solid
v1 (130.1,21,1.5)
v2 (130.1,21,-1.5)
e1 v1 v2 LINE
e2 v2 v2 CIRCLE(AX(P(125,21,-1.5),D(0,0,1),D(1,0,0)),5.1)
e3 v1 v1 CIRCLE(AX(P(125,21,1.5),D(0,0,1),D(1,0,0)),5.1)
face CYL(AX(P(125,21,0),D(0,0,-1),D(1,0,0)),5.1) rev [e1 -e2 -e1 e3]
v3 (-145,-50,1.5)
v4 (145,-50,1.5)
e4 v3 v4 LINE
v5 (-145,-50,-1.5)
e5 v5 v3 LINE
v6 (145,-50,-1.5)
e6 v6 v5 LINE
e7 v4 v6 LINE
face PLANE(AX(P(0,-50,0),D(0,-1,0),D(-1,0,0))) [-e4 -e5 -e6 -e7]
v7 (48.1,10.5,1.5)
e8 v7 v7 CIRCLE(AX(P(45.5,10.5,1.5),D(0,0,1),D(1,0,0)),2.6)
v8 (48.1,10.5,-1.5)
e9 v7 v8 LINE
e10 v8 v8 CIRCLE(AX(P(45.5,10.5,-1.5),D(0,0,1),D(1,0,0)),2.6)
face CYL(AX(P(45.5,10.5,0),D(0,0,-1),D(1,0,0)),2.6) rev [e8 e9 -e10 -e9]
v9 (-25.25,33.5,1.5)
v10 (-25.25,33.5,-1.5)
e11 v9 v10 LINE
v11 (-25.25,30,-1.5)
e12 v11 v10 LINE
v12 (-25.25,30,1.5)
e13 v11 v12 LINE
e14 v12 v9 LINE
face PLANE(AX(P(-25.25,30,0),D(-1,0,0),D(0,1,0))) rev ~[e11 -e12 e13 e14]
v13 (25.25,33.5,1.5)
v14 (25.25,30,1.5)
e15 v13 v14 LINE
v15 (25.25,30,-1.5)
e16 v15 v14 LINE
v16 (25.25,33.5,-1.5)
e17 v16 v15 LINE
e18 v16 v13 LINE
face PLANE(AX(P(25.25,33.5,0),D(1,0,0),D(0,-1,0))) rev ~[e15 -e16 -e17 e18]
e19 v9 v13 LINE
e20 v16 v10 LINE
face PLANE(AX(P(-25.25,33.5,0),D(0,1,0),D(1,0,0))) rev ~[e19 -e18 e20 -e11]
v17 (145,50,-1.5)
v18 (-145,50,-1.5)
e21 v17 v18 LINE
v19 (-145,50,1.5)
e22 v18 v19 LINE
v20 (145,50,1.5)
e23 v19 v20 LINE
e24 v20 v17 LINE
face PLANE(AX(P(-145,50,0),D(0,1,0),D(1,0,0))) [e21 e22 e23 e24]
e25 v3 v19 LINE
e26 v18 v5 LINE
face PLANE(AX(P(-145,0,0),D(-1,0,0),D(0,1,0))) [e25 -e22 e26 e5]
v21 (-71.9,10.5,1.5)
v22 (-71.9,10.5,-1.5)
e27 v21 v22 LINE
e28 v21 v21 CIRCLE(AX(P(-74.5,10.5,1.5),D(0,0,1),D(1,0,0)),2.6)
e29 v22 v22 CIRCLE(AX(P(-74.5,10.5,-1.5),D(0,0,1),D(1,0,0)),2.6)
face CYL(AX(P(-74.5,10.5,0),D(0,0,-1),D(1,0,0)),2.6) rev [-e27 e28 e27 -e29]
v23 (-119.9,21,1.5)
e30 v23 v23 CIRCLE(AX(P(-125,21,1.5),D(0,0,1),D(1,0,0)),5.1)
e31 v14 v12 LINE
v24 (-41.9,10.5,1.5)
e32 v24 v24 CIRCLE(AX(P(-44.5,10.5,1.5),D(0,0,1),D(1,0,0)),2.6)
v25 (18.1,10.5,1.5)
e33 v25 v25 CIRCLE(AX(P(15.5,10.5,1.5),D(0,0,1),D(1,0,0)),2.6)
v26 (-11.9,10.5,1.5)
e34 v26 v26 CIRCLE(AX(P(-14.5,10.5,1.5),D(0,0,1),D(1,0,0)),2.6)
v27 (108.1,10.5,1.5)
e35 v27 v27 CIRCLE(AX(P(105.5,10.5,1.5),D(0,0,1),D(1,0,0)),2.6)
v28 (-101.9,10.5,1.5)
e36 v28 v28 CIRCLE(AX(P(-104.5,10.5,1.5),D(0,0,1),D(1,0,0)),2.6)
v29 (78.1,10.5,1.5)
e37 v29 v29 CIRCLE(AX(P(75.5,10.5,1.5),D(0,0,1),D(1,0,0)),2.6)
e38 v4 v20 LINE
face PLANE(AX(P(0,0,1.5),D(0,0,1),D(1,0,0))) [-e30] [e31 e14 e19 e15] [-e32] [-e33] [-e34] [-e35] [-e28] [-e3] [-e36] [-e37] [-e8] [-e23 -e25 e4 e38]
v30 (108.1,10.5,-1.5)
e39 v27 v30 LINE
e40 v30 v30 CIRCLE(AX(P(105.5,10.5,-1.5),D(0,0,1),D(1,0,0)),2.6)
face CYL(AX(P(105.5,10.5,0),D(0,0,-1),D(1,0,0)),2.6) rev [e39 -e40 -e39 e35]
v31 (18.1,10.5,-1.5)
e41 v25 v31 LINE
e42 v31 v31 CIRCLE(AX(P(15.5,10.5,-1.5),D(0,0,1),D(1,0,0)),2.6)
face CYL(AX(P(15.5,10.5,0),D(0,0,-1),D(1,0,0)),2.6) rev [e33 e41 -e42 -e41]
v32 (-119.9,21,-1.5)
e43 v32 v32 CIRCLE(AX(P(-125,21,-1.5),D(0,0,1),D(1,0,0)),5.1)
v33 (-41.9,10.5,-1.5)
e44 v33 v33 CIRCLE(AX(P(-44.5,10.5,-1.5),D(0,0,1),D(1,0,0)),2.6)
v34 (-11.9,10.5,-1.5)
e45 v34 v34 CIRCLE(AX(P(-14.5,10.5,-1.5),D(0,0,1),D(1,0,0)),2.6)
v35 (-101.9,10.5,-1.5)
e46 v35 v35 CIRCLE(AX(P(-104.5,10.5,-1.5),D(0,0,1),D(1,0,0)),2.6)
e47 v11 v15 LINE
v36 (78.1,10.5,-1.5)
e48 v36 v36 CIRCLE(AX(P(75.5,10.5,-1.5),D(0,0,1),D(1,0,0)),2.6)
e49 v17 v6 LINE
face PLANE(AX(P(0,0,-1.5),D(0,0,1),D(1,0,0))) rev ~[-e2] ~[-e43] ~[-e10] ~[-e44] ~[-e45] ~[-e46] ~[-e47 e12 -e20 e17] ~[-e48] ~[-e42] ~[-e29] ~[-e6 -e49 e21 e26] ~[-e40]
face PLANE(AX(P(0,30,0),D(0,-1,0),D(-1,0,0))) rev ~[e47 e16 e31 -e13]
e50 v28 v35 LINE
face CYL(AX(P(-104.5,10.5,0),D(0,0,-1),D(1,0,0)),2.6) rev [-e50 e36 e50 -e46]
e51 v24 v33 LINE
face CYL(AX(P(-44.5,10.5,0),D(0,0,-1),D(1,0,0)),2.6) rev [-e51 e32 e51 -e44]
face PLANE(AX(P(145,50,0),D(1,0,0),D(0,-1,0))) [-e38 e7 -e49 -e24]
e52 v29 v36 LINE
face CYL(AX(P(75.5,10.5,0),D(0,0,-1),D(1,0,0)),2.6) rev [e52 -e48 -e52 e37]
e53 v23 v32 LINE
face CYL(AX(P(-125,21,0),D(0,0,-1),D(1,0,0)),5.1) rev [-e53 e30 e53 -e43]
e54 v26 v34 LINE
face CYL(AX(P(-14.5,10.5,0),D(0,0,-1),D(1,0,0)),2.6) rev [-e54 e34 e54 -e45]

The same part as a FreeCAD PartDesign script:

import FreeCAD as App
import Part
import Sketcher
from FreeCAD import Vector
Q = App.Units.Quantity


def add_polygon(sketch, points):
    """Adds a closed chain of lines whose ends are joined by coincident constraints."""
    first, n = sketch.GeometryCount, len(points)
    for a, b in zip(points, points[1:] + points[:1]):
        sketch.addGeometry(Part.LineSegment(App.Vector(*a, 0), App.Vector(*b, 0)), False)
    for i in range(n):
        sketch.addConstraint(Sketcher.Constraint("Coincident", first + i, 2, first + (i + 1) % n, 1))

doc = App.newDocument("Part")
params = doc.addObject("Spreadsheet::Sheet", "Params")
for row, (alias, value) in enumerate([
    ("sketch1_diameter", "5.2 mm"),
    ("sketch1_diameter2", "10.2 mm"),
    ("sketch1_width", "290 mm"),
    ("sketch1_height", "100 mm"),
    ("sketch1_width2", "50.5 mm"),
    ("pad1_length", "3 mm"),
], start=1):
    params.set(f"A{row}", alias)
    params.set(f"B{row}", "=" + value)
    params.setAlias(f"B{row}", alias)

body = doc.addObject("PartDesign::Body", "Body")

# Sketch on XY plane
sketch1 = body.newObject("Sketcher::SketchObject", "Sketch")
sketch1.AttachmentSupport = (doc.getObject("XY_Plane"), [""])
sketch1.MapMode = "FlatFace"
add_polygon(sketch1, [(-145, 50), (-145, -50), (145, -50), (145, 50)])  # lines 0-3
add_polygon(sketch1, [(-25.2, 33.5), (25.2, 33.5), (25.2, 30), (-25.2, 30)])  # lines 4-7
sketch1.addGeometry(Part.Circle(Vector(-104.5, 10.5, 0), Vector(0, 0, 1), 2.6), False)  # 8
sketch1.addGeometry(Part.Circle(Vector(-74.5, 10.5, 0), Vector(0, 0, 1), 2.6), False)  # 9
sketch1.addGeometry(Part.Circle(Vector(-125, 21, 0), Vector(0, 0, 1), 5.1), False)  # 10
sketch1.addGeometry(Part.Circle(Vector(-44.5, 10.5, 0), Vector(0, 0, 1), 2.6), False)  # 11
sketch1.addGeometry(Part.Circle(Vector(-14.5, 10.5, 0), Vector(0, 0, 1), 2.6), False)  # 12
sketch1.addGeometry(Part.Circle(Vector(105.5, 10.5, 0), Vector(0, 0, 1), 2.6), False)  # 13
sketch1.addGeometry(Part.Circle(Vector(125, 21, 0), Vector(0, 0, 1), 5.1), False)  # 14
sketch1.addGeometry(Part.Circle(Vector(15.5, 10.5, 0), Vector(0, 0, 1), 2.6), False)  # 15
sketch1.addGeometry(Part.Circle(Vector(45.5, 10.5, 0), Vector(0, 0, 1), 2.6), False)  # 16
sketch1.addGeometry(Part.Circle(Vector(75.5, 10.5, 0), Vector(0, 0, 1), 2.6), False)  # 17
sketch1.addConstraint(Sketcher.Constraint("Vertical", 0))
sketch1.addConstraint(Sketcher.Constraint("Horizontal", 1))
sketch1.addConstraint(Sketcher.Constraint("Vertical", 2))
sketch1.addConstraint(Sketcher.Constraint("Horizontal", 3))
sketch1.addConstraint(Sketcher.Constraint("Horizontal", 4))
sketch1.addConstraint(Sketcher.Constraint("Vertical", 5))
sketch1.addConstraint(Sketcher.Constraint("Horizontal", 6))
sketch1.addConstraint(Sketcher.Constraint("Vertical", 7))
sketch1.addConstraint(Sketcher.Constraint("Equal", 8, 9))
sketch1.addConstraint(Sketcher.Constraint("Equal", 9, 11))
sketch1.addConstraint(Sketcher.Constraint("Equal", 11, 12))
sketch1.addConstraint(Sketcher.Constraint("Equal", 12, 13))
sketch1.addConstraint(Sketcher.Constraint("Equal", 10, 14))
sketch1.addConstraint(Sketcher.Constraint("Equal", 13, 15))
sketch1.addConstraint(Sketcher.Constraint("Equal", 15, 16))
sketch1.addConstraint(Sketcher.Constraint("Equal", 16, 17))
sketch1.addConstraint(Sketcher.Constraint("Symmetric", 0, 2, 2, 2, -1, 1))
sketch1.addConstraint(Sketcher.Constraint("Symmetric", 10, 3, 14, 3, -2))
sketch1.addConstraint(Sketcher.Constraint("Horizontal", 8, 3, 9, 3))
sketch1.addConstraint(Sketcher.Constraint("Horizontal", 9, 3, 11, 3))
sketch1.addConstraint(Sketcher.Constraint("Horizontal", 11, 3, 12, 3))
sketch1.addConstraint(Sketcher.Constraint("Horizontal", 12, 3, 13, 3))
sketch1.addConstraint(Sketcher.Constraint("Horizontal", 13, 3, 15, 3))
sketch1.addConstraint(Sketcher.Constraint("Horizontal", 15, 3, 16, 3))
sketch1.addConstraint(Sketcher.Constraint("Horizontal", 16, 3, 17, 3))
sketch1.addConstraint(Sketcher.Constraint("Diameter", 8, Q("5.2 mm")))
sketch1.addConstraint(Sketcher.Constraint("Diameter", 10, Q("10.2 mm")))
sketch1.addConstraint(Sketcher.Constraint("DistanceX", 1, 1, 1, 2, Q("290 mm")))
sketch1.addConstraint(Sketcher.Constraint("DistanceY", 0, 2, 0, 1, Q("100 mm")))
sketch1.addConstraint(Sketcher.Constraint("DistanceX", 4, 1, 4, 2, Q("50.5 mm")))
sketch1.addConstraint(Sketcher.Constraint("DistanceY", 5, 2, 5, 1, Q("3.5 mm")))
sketch1.addConstraint(Sketcher.Constraint("DistanceY", -1, 1, 5, 2, Q("30 mm")))
sketch1.addConstraint(Sketcher.Constraint("DistanceX", 8, 3, 9, 3, Q("30 mm")))
sketch1.addConstraint(Sketcher.Constraint("DistanceX", 9, 3, 11, 3, Q("30 mm")))
sketch1.addConstraint(Sketcher.Constraint("DistanceX", 11, 3, 12, 3, Q("30 mm")))
sketch1.addConstraint(Sketcher.Constraint("DistanceX", 12, 3, 15, 3, Q("30 mm")))
sketch1.addConstraint(Sketcher.Constraint("DistanceX", 15, 3, 16, 3, Q("30 mm")))
sketch1.addConstraint(Sketcher.Constraint("DistanceX", 17, 3, 13, 3, Q("30 mm")))
sketch1.addConstraint(Sketcher.Constraint("DistanceX", 16, 3, 17, 3, Q("30 mm")))
sketch1.addConstraint(Sketcher.Constraint("DistanceX", 0, 2, 10, 3, Q("20 mm")))
sketch1.addConstraint(Sketcher.Constraint("DistanceY", 0, 2, 10, 3, Q("71 mm")))
sketch1.addConstraint(Sketcher.Constraint("DistanceX", 10, 3, 9, 3, Q("50.5 mm")))
sketch1.addConstraint(Sketcher.Constraint("DistanceY", 0, 2, 8, 3, Q("60.5 mm")))
sketch1.addConstraint(Sketcher.Constraint("DistanceX", -1, 1, 4, 2, Q("25.25 mm")))
sketch1.setExpression("Constraints[33]", "Params.sketch1_diameter")
sketch1.setExpression("Constraints[34]", "Params.sketch1_diameter2")
sketch1.setExpression("Constraints[35]", "Params.sketch1_width")
sketch1.setExpression("Constraints[36]", "Params.sketch1_height")
sketch1.setExpression("Constraints[37]", "Params.sketch1_width2")
pad1 = body.newObject("PartDesign::Pad", "Pad")
pad1.Profile = sketch1
pad1.setExpression("Length", "Params.pad1_length")
pad1.Midplane = True

doc.recompute()
